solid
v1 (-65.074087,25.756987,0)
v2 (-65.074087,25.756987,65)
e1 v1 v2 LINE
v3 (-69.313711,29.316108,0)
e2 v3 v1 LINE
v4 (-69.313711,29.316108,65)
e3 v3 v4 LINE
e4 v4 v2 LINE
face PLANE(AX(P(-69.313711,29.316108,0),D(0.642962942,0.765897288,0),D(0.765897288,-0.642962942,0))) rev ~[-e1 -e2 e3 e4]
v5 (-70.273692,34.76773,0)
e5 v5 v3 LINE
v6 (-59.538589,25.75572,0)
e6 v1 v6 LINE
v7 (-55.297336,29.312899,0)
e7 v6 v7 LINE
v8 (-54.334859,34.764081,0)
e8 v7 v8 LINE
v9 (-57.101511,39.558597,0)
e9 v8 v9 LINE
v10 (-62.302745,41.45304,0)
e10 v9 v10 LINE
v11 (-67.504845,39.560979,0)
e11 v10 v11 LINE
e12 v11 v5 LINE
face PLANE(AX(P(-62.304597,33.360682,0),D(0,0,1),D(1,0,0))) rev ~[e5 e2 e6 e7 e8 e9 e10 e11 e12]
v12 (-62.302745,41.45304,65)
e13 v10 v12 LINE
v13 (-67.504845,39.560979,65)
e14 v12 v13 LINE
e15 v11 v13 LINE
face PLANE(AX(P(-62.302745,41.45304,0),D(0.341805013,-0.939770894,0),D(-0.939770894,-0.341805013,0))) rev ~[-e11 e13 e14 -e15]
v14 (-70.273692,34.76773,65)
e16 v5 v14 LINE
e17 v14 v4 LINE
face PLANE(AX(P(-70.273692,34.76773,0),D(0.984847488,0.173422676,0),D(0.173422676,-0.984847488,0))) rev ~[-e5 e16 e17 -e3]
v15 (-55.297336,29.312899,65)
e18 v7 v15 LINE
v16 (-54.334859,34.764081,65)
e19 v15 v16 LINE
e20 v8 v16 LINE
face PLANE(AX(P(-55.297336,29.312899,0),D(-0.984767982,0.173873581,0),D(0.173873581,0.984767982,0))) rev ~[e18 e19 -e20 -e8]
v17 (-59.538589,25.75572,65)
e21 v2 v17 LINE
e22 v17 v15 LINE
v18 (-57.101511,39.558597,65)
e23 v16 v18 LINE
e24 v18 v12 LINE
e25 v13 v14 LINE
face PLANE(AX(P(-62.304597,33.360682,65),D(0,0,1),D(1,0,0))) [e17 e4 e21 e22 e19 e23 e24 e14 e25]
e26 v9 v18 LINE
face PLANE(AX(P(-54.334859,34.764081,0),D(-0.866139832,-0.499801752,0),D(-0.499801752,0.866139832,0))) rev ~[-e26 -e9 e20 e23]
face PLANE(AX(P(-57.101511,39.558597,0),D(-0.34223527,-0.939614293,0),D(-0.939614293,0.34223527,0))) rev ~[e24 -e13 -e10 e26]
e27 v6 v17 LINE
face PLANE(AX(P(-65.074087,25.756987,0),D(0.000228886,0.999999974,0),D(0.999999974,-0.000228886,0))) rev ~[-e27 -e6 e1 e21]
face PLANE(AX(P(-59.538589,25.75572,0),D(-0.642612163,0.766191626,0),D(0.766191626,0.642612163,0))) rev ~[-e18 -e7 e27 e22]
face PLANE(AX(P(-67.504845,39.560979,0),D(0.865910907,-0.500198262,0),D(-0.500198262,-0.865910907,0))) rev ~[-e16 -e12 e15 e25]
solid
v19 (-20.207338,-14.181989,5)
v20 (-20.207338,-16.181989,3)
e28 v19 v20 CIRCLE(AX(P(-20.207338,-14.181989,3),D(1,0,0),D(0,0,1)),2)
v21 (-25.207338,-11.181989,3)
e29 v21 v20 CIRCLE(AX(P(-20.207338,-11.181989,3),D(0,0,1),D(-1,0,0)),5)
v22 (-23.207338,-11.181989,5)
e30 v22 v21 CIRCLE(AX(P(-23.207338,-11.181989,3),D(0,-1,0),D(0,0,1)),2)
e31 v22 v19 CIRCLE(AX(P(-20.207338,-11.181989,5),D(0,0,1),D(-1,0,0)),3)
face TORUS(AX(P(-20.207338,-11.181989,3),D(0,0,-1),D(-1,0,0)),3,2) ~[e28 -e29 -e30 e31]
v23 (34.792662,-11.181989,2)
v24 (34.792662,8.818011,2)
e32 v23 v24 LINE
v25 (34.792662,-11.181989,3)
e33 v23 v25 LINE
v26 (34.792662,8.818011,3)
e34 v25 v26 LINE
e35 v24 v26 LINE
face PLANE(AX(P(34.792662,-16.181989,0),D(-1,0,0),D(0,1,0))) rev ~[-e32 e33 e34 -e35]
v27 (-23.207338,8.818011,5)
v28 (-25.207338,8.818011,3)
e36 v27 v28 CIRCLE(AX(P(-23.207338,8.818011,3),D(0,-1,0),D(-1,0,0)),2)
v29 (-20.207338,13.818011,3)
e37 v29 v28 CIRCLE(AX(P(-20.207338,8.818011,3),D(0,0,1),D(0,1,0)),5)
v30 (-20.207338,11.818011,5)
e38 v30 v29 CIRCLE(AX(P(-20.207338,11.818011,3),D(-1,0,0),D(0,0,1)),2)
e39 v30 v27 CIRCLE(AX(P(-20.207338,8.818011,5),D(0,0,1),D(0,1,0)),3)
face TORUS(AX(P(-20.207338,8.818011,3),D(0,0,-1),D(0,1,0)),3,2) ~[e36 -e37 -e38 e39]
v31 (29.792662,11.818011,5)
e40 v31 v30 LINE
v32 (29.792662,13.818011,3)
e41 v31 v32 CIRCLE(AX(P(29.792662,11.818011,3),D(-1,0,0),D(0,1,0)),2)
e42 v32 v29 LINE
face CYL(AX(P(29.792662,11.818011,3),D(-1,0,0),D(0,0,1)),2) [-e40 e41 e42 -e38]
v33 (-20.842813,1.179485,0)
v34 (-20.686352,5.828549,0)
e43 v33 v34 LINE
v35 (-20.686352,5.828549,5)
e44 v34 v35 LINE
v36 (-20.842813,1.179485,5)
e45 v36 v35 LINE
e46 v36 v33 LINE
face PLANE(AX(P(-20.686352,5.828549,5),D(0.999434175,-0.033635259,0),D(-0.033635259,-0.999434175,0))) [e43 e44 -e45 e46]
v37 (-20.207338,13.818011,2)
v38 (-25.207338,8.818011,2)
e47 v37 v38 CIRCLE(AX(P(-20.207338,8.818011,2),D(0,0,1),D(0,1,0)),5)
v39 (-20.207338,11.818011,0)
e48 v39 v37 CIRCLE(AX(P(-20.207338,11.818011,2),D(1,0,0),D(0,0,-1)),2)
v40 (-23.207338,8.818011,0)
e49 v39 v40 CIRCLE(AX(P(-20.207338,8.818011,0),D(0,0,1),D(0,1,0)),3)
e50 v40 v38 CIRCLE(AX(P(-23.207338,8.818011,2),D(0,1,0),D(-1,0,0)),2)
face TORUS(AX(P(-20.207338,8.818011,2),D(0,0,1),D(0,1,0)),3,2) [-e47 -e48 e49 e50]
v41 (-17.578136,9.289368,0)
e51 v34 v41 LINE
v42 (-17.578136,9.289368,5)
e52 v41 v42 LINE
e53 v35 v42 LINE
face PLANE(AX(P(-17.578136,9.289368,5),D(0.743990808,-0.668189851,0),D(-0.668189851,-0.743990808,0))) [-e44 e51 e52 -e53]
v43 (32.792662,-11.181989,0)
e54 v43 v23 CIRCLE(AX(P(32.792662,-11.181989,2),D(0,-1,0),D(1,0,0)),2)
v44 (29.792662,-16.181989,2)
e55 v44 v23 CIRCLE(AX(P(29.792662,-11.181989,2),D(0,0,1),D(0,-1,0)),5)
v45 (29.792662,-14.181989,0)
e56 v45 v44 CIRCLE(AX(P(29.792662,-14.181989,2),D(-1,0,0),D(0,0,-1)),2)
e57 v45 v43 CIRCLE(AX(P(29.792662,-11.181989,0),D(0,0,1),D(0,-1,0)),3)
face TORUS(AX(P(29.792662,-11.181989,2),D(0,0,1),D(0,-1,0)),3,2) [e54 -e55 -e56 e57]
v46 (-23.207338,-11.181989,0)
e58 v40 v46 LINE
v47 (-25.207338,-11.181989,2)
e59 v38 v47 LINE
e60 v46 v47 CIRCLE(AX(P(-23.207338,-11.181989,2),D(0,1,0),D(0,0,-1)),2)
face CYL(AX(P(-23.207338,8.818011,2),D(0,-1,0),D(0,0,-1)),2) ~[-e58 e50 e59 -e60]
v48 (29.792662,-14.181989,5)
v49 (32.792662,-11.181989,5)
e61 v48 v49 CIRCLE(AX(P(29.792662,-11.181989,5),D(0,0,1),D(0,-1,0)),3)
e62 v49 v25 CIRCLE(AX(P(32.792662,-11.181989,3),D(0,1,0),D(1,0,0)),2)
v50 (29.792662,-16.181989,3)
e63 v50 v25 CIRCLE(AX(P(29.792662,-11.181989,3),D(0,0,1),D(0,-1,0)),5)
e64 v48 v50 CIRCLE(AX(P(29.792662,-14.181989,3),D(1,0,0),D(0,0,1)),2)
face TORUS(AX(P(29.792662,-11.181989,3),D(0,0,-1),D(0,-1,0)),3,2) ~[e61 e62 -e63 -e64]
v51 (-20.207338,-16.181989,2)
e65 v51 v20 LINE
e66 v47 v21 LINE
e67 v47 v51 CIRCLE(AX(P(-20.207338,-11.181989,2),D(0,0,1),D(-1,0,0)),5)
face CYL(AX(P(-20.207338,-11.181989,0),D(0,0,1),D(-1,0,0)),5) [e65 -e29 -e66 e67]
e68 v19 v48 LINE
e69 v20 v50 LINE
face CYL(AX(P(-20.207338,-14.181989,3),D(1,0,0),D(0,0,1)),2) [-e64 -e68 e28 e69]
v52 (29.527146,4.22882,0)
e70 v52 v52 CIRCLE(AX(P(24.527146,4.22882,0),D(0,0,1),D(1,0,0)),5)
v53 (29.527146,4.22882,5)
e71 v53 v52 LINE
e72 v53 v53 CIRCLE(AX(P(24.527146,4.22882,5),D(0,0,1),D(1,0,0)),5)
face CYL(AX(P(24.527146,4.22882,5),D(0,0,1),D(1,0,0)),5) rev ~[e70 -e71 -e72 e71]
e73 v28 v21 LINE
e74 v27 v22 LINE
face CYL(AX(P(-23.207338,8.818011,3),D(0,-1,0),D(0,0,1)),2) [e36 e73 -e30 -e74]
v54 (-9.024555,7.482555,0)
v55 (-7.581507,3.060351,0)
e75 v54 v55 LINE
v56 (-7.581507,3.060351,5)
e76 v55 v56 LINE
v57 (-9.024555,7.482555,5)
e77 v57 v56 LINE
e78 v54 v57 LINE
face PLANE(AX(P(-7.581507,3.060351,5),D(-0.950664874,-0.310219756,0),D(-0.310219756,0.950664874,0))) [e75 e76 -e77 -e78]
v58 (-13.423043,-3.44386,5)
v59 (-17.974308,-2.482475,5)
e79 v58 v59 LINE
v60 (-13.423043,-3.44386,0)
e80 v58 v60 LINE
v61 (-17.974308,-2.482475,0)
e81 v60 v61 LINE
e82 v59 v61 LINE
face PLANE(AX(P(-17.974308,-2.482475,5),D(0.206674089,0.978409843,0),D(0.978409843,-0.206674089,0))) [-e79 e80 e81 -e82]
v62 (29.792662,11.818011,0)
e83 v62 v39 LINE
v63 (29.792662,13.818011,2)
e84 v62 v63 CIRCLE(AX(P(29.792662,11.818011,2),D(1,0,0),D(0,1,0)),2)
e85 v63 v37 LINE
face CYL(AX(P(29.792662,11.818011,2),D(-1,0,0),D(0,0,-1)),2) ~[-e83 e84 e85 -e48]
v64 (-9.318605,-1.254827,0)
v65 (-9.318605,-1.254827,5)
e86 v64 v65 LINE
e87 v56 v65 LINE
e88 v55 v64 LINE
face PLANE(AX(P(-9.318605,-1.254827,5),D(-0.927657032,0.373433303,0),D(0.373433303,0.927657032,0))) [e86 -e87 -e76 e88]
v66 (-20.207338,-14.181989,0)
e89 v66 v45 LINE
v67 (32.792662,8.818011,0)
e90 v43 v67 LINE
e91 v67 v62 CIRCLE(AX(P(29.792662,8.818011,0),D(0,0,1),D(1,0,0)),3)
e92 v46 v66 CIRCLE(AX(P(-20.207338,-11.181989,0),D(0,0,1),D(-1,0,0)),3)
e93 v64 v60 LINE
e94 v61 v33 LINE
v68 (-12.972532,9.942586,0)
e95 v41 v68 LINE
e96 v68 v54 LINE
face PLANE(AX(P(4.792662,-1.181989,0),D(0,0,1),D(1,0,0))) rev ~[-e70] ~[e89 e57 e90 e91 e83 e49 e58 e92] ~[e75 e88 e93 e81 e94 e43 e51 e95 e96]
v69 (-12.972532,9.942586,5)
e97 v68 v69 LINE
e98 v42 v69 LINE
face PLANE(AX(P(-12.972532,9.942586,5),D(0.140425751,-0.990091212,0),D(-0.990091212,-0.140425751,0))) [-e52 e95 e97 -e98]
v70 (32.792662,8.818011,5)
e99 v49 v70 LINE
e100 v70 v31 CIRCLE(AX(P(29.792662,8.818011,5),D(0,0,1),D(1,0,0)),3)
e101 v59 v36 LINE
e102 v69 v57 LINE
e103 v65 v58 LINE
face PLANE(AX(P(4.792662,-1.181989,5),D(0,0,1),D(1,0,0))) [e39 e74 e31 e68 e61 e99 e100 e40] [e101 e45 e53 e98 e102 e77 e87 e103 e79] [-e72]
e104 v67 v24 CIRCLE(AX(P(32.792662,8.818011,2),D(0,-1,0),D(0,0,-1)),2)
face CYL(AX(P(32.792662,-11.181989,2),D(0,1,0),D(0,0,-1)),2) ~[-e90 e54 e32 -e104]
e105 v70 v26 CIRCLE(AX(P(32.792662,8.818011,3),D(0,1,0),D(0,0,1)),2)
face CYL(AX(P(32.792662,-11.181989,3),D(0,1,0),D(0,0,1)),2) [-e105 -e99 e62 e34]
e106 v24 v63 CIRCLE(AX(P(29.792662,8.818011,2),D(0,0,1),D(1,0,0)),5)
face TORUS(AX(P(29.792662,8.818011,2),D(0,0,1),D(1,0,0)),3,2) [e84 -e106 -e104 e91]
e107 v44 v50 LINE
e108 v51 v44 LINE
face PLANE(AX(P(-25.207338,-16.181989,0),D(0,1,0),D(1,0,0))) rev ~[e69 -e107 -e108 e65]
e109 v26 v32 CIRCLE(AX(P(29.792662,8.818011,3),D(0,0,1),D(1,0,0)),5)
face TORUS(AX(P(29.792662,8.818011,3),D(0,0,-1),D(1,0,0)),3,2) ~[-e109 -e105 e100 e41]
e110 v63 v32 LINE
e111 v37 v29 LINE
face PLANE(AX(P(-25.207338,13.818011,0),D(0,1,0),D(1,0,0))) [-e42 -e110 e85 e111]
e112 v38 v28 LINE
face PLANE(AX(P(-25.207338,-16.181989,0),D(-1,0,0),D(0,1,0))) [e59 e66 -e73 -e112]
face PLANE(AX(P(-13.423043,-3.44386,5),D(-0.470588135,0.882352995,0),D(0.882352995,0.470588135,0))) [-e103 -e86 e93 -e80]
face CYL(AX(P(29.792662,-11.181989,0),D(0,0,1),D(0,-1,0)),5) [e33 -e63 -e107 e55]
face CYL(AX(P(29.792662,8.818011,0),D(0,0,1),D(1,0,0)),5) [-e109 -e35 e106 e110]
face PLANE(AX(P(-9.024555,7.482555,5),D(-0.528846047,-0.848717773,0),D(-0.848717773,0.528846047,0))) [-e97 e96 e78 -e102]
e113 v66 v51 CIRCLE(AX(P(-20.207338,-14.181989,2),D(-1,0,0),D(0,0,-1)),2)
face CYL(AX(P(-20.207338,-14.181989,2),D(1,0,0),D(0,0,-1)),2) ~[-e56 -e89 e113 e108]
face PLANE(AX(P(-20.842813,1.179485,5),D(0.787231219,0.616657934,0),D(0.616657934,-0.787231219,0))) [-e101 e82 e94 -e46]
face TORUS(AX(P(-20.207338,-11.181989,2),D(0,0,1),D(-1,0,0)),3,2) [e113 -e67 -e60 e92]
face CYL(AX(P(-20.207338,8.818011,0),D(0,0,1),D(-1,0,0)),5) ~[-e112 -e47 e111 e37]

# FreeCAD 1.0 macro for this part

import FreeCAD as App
import Part
import Sketcher

V = App.Vector
Q = App.Units.Quantity


def edges_at(feature, points):
    """Names of the edges that pass closest to the given points."""
    edges = feature.Shape.Edges
    near = lambda p: min(range(len(edges)), key=lambda i: edges[i].distToShape(Part.Vertex(*p))[0])
    return sorted({f"Edge{near(p) + 1}" for p in points})


def add_polygon(sketch, points):
    """Adds a closed chain of lines whose ends are joined by coincident constraints."""
    first, n = sketch.GeometryCount, len(points)
    for a, b in zip(points, points[1:] + points[:1]):
        sketch.addGeometry(Part.LineSegment(App.Vector(*a, 0), App.Vector(*b, 0)), False)
    for i in range(n):
        sketch.addConstraint(Sketcher.Constraint("Coincident", first + i, 2, first + (i + 1) % n, 1))

doc = App.newDocument("Part")
body = doc.addObject("PartDesign::Body", "Body")

# Sketch on XY plane
sketch1 = body.newObject("Sketcher::SketchObject", "Sketch")
sketch1.AttachmentSupport = (doc.getObject("XY_Plane"), [""])
sketch1.MapMode = "FlatFace"
add_polygon(sketch1, [(-25, 14), (-25, -16), (35, -16), (35, 14)])  # lines 0-3
sketch1.addConstraint(Sketcher.Constraint("Vertical", 0))
sketch1.addConstraint(Sketcher.Constraint("Horizontal", 1))
sketch1.addConstraint(Sketcher.Constraint("Vertical", 2))
sketch1.addConstraint(Sketcher.Constraint("Horizontal", 3))
sketch1.addConstraint(Sketcher.Constraint("DistanceX", 1, 1, 1, 2, Q("60 mm")))
sketch1.addConstraint(Sketcher.Constraint("DistanceY", 0, 2, 0, 1, Q("30 mm")))
sketch1.addConstraint(Sketcher.Constraint("DistanceX", 0, 2, -1, 1, Q("25.207338 mm")))
sketch1.addConstraint(Sketcher.Constraint("DistanceY", 0, 2, -1, 1, Q("16.181989 mm")))
pad1 = body.newObject("PartDesign::Pad", "Pad")
pad1.Profile = sketch1
pad1.Length = 5
doc.recompute()

fillet = body.newObject("PartDesign::Fillet", "Fillet")
fillet.Base = (pad1, edges_at(pad1, [
    (-25.207, -16.182, 2.5),
    (34.793, -16.182, 2.5),
    (34.793, 13.818, 2.5),
    (-25.207, 13.818, 2.5),
]))
fillet.Radius = 5
doc.recompute()

fillet2 = body.newObject("PartDesign::Fillet", "Fillet001")
fillet2.Base = (fillet, edges_at(fillet, [
    (4.793, -16.182, 5),
    (-25.207, -1.182, 5),
    (4.793, 13.818, 5),
    (34.793, -1.182, 5),
]))
fillet2.Radius = 2
doc.recompute()

fillet3 = body.newObject("PartDesign::Fillet", "Fillet002")
fillet3.Base = (fillet2, edges_at(fillet2, [
    (4.793, -16.182, 0),
    (-25.207, -1.182, 0),
    (4.793, 13.818, 0),
    (34.793, -1.182, 0),
]))
fillet3.Radius = 2

# Sketch on XY plane
sketch2 = body.newObject("Sketcher::SketchObject", "Sketch001")
sketch2.AttachmentSupport = (doc.getObject("XY_Plane"), [""])
sketch2.MapMode = "FlatFace"
sketch2.AttachmentOffset = App.Placement(V(0, 0, 5), App.Rotation())
sketch2.addGeometry(Part.Circle(V(25, 4, 0), V(0, 0, 1), 5), False)
sketch2.addConstraint(Sketcher.Constraint("Diameter", 0, Q("10 mm")))
sketch2.addConstraint(Sketcher.Constraint("DistanceY", -1, 1, 0, 3, Q("4.22882 mm")))
sketch2.addConstraint(Sketcher.Constraint("DistanceX", -1, 1, 0, 3, Q("24.527146 mm")))
pocket1 = body.newObject("PartDesign::Pocket", "Pocket")
pocket1.Profile = sketch2
pocket1.Length = 25
pocket1.Midplane = True

# Sketch on XY plane
sketch3 = body.newObject("Sketcher::SketchObject", "Sketch002")
sketch3.AttachmentSupport = (doc.getObject("XY_Plane"), [""])
sketch3.MapMode = "FlatFace"
sketch3.AttachmentOffset = App.Placement(V(0, 0, 5), App.Rotation())
add_polygon(sketch3, [(-13.4, -3.4), (-9.3, -1.3), (-7.6, 3.1), (-9, 7.5), (-13, 9.9), (-17.6, 9.3), (-20.7, 5.8), (-20.8, 1.2), (-18, -2.5)])  # lines 0-8
sketch3.addConstraint(Sketcher.Constraint("Equal", 0, 1))
sketch3.addConstraint(Sketcher.Constraint("Equal", 1, 2))
sketch3.addConstraint(Sketcher.Constraint("Equal", 2, 3))
sketch3.addConstraint(Sketcher.Constraint("Equal", 3, 4))
sketch3.addConstraint(Sketcher.Constraint("Equal", 4, 5))
sketch3.addConstraint(Sketcher.Constraint("Equal", 5, 6))
sketch3.addConstraint(Sketcher.Constraint("Equal", 6, 7))
sketch3.addConstraint(Sketcher.Constraint("Equal", 7, 8))
sketch3.addConstraint(Sketcher.Constraint("DistanceY", 6, 2, 3, 2, Q("8.763101 mm")))
sketch3.addConstraint(Sketcher.Constraint("DistanceX", 7, 2, 1, 2, Q("10.392801 mm")))
sketch3.addConstraint(Sketcher.Constraint("DistanceY", -1, 1, 1, 2, Q("3.060351 mm")))
sketch3.addConstraint(Sketcher.Constraint("DistanceX", 3, 2, -1, 1, Q("12.972532 mm")))
sketch3.addConstraint(Sketcher.Constraint("DistanceX", 5, 2, -1, 1, Q("20.686352 mm")))
sketch3.addConstraint(Sketcher.Constraint("DistanceY", -1, 1, 5, 2, Q("5.828549 mm")))
sketch3.addConstraint(Sketcher.Constraint("DistanceX", 7, 2, -1, 1, Q("17.974308 mm")))
sketch3.addConstraint(Sketcher.Constraint("DistanceY", 8, 2, -1, 1, Q("3.44386 mm")))
sketch3.addConstraint(Sketcher.Constraint("DistanceX", 0, 2, 2, 2, Q("0.29405 mm")))
sketch3.addConstraint(Sketcher.Constraint("DistanceY", 2, 2, 3, 2, Q("2.460031 mm")))
pocket2 = body.newObject("PartDesign::Pocket", "Pocket001")
pocket2.Profile = sketch3
pocket2.Length = 25
pocket2.Midplane = True
body2 = doc.addObject("PartDesign::Body", "Body001")

# Sketch on XY plane
sketch4 = body2.newObject("Sketcher::SketchObject", "Sketch003")
sketch4.AttachmentSupport = (doc.getObject("XY_Plane001"), [""])
sketch4.MapMode = "FlatFace"
add_polygon(sketch4, [(-60, 26), (-55, 29), (-54, 35), (-57, 40), (-62, 41), (-68, 40), (-70, 35), (-69, 29), (-65, 26)])  # lines 0-8
sketch4.addConstraint(Sketcher.Constraint("Equal", 0, 1))
sketch4.addConstraint(Sketcher.Constraint("Equal", 1, 2))
sketch4.addConstraint(Sketcher.Constraint("Equal", 2, 3))
sketch4.addConstraint(Sketcher.Constraint("Equal", 3, 4))
sketch4.addConstraint(Sketcher.Constraint("Equal", 4, 5))
sketch4.addConstraint(Sketcher.Constraint("Equal", 5, 6))
sketch4.addConstraint(Sketcher.Constraint("Equal", 6, 7))
sketch4.addConstraint(Sketcher.Constraint("Equal", 7, 8))
sketch4.addConstraint(Sketcher.Constraint("Distance", 0, Q("5.535499 mm")))
sketch4.addConstraint(Sketcher.Constraint("DistanceY", -1, 1, 0, 2, Q("29.312899 mm")))
sketch4.addConstraint(Sketcher.Constraint("DistanceX", 4, 2, 3, 2, Q("5.2021 mm")))
sketch4.addConstraint(Sketcher.Constraint("DistanceY", 1, 2, 4, 2, Q("4.796898 mm")))
sketch4.addConstraint(Sketcher.Constraint("DistanceX", 6, 2, 2, 2, Q("12.2122 mm")))
sketch4.addConstraint(Sketcher.Constraint("DistanceX", 1, 2, -1, 1, Q("54.334859 mm")))
sketch4.addConstraint(Sketcher.Constraint("DistanceY", -1, 1, 1, 2, Q("34.764081 mm")))
sketch4.addConstraint(Sketcher.Constraint("DistanceX", 2, 2, -1, 1, Q("57.101511 mm")))
sketch4.addConstraint(Sketcher.Constraint("DistanceX", 5, 2, -1, 1, Q("70.273692 mm")))
sketch4.addConstraint(Sketcher.Constraint("DistanceX", 8, 2, -1, 1, Q("59.538589 mm")))
pad2 = body2.newObject("PartDesign::Pad", "Pad001")
pad2.Profile = sketch4
pad2.Length = 65

doc.recompute()
